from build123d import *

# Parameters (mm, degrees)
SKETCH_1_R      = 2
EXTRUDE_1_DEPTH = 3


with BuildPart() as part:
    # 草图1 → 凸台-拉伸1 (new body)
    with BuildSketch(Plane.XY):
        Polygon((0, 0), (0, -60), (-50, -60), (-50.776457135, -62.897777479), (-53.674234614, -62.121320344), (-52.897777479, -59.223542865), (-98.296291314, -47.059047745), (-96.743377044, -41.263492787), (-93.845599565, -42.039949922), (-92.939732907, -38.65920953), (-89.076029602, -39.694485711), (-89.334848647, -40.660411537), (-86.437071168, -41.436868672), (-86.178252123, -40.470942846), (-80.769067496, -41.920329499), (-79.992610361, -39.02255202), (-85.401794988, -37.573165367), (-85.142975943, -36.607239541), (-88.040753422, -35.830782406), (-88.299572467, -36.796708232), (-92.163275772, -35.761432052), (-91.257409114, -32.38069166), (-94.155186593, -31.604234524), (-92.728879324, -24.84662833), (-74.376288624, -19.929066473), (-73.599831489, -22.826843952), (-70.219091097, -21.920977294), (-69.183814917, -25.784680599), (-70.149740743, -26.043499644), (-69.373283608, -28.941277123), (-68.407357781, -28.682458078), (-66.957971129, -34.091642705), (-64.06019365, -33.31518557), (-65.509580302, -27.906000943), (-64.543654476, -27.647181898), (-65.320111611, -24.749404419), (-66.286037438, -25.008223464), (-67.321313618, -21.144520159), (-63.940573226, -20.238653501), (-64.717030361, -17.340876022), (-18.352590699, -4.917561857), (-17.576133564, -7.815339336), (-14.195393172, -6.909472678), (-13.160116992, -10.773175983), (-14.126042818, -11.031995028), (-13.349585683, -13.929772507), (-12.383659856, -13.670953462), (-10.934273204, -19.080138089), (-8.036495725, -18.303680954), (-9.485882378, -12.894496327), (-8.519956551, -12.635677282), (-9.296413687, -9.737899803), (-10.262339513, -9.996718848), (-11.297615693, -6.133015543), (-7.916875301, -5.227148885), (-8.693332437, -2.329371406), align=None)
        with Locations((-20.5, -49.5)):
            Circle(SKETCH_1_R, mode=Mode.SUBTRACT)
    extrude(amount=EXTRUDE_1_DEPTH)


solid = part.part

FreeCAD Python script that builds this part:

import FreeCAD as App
import Part
import Sketcher
Q = App.Units.Quantity

doc = App.newDocument("Part")
params = doc.addObject("Spreadsheet::Sheet", "Params")
for row, (alias, value) in enumerate([
    ("sketch1_diameter", "4 mm"),
    ("sketch1_width", "50 mm"),
    ("sketch1_height", "60 mm"),
    ("sketch1_length", "9 mm"),
    ("sketch1_length2", "3 mm"),
    ("pad1_length", "3 mm"),
], start=1):
    params.set(f"A{row}", alias)
    params.set(f"B{row}", "=" + value)
    params.setAlias(f"B{row}", alias)

body = doc.addObject("PartDesign::Body", "Body")

sketch1 = body.newObject("Sketcher::SketchObject", "Sketch")
sketch1.AttachmentSupport = (doc.getObject("XY_Plane"), [""])
sketch1.MapMode = "FlatFace"
sketch1.addGeometry([
    Part.LineSegment(App.Vector(0, -60, 0), App.Vector(0, 0, 0)),
    Part.LineSegment(App.Vector(0, 0, 0), App.Vector(-8.693332, -2.329371, 0)),
    Part.LineSegment(App.Vector(-8.693332, -2.329371, 0), App.Vector(-7.916875, -5.227149, 0)),
    Part.LineSegment(App.Vector(-7.916875, -5.227149, 0), App.Vector(-11.297616, -6.133016, 0)),
    Part.LineSegment(App.Vector(-11.297616, -6.133016, 0), App.Vector(-10.26234, -9.996719, 0)),
    Part.LineSegment(App.Vector(-10.26234, -9.996719, 0), App.Vector(-9.296414, -9.7379, 0)),
    Part.LineSegment(App.Vector(-9.296414, -9.7379, 0), App.Vector(-8.519957, -12.635677, 0)),
    Part.LineSegment(App.Vector(-8.519957, -12.635677, 0), App.Vector(-9.485882, -12.894496, 0)),
    Part.LineSegment(App.Vector(-9.485882, -12.894496, 0), App.Vector(-8.036496, -18.303681, 0)),
    Part.LineSegment(App.Vector(-8.036496, -18.303681, 0), App.Vector(-10.934273, -19.080138, 0)),
    Part.LineSegment(App.Vector(-10.934273, -19.080138, 0), App.Vector(-12.38366, -13.670953, 0)),
    Part.LineSegment(App.Vector(-12.38366, -13.670953, 0), App.Vector(-13.349586, -13.929773, 0)),
    Part.LineSegment(App.Vector(-13.349586, -13.929773, 0), App.Vector(-14.126043, -11.031995, 0)),
    Part.LineSegment(App.Vector(-14.126043, -11.031995, 0), App.Vector(-13.160117, -10.773176, 0)),
    Part.LineSegment(App.Vector(-13.160117, -10.773176, 0), App.Vector(-14.195393, -6.909473, 0)),
    Part.LineSegment(App.Vector(-14.195393, -6.909473, 0), App.Vector(-17.576134, -7.815339, 0)),
    Part.LineSegment(App.Vector(-17.576134, -7.815339, 0), App.Vector(-18.352591, -4.917562, 0)),
    Part.LineSegment(App.Vector(-18.352591, -4.917562, 0), App.Vector(-64.71703, -17.340876, 0)),
    Part.LineSegment(App.Vector(-64.71703, -17.340876, 0), App.Vector(-63.940573, -20.238654, 0)),
    Part.LineSegment(App.Vector(-63.940573, -20.238654, 0), App.Vector(-67.321314, -21.14452, 0)),
    Part.LineSegment(App.Vector(-67.321314, -21.14452, 0), App.Vector(-66.286037, -25.008223, 0)),
    Part.LineSegment(App.Vector(-66.286037, -25.008223, 0), App.Vector(-65.320112, -24.749404, 0)),
    Part.LineSegment(App.Vector(-65.320112, -24.749404, 0), App.Vector(-64.543654, -27.647182, 0)),
    Part.LineSegment(App.Vector(-64.543654, -27.647182, 0), App.Vector(-65.50958, -27.906001, 0)),
    Part.LineSegment(App.Vector(-65.50958, -27.906001, 0), App.Vector(-64.060194, -33.315186, 0)),
    Part.LineSegment(App.Vector(-64.060194, -33.315186, 0), App.Vector(-66.957971, -34.091643, 0)),
    Part.LineSegment(App.Vector(-66.957971, -34.091643, 0), App.Vector(-68.407358, -28.682458, 0)),
    Part.LineSegment(App.Vector(-68.407358, -28.682458, 0), App.Vector(-69.373284, -28.941277, 0)),
    Part.LineSegment(App.Vector(-69.373284, -28.941277, 0), App.Vector(-70.149741, -26.0435, 0)),
    Part.LineSegment(App.Vector(-70.149741, -26.0435, 0), App.Vector(-69.183815, -25.784681, 0)),
    Part.LineSegment(App.Vector(-69.183815, -25.784681, 0), App.Vector(-70.219091, -21.920977, 0)),
    Part.LineSegment(App.Vector(-70.219091, -21.920977, 0), App.Vector(-73.599831, -22.826844, 0)),
    Part.LineSegment(App.Vector(-73.599831, -22.826844, 0), App.Vector(-74.376289, -19.929066, 0)),
    Part.LineSegment(App.Vector(-74.376289, -19.929066, 0), App.Vector(-92.728879, -24.846628, 0)),
    Part.LineSegment(App.Vector(-92.728879, -24.846628, 0), App.Vector(-94.155187, -31.604235, 0)),
    Part.LineSegment(App.Vector(-94.155187, -31.604235, 0), App.Vector(-91.257409, -32.380692, 0)),
    Part.LineSegment(App.Vector(-91.257409, -32.380692, 0), App.Vector(-92.163276, -35.761432, 0)),
    Part.LineSegment(App.Vector(-92.163276, -35.761432, 0), App.Vector(-88.299572, -36.796708, 0)),
    Part.LineSegment(App.Vector(-88.299572, -36.796708, 0), App.Vector(-88.040753, -35.830782, 0)),
    Part.LineSegment(App.Vector(-88.040753, -35.830782, 0), App.Vector(-85.142976, -36.60724, 0)),
    Part.LineSegment(App.Vector(-85.142976, -36.60724, 0), App.Vector(-85.401795, -37.573165, 0)),
    Part.LineSegment(App.Vector(-85.401795, -37.573165, 0), App.Vector(-79.99261, -39.022552, 0)),
    Part.LineSegment(App.Vector(-79.99261, -39.022552, 0), App.Vector(-80.769067, -41.920329, 0)),
    Part.LineSegment(App.Vector(-80.769067, -41.920329, 0), App.Vector(-86.178252, -40.470943, 0)),
    Part.LineSegment(App.Vector(-86.178252, -40.470943, 0), App.Vector(-86.437071, -41.436869, 0)),
    Part.LineSegment(App.Vector(-86.437071, -41.436869, 0), App.Vector(-89.334849, -40.660412, 0)),
    Part.LineSegment(App.Vector(-89.334849, -40.660412, 0), App.Vector(-89.07603, -39.694486, 0)),
    Part.LineSegment(App.Vector(-89.07603, -39.694486, 0), App.Vector(-92.939733, -38.65921, 0)),
    Part.LineSegment(App.Vector(-92.939733, -38.65921, 0), App.Vector(-93.8456, -42.03995, 0)),
    Part.LineSegment(App.Vector(-93.8456, -42.03995, 0), App.Vector(-96.743377, -41.263493, 0)),
    Part.LineSegment(App.Vector(-96.743377, -41.263493, 0), App.Vector(-98.296291, -47.059048, 0)),
    Part.LineSegment(App.Vector(-98.296291, -47.059048, 0), App.Vector(-52.897777, -59.223543, 0)),
    Part.LineSegment(App.Vector(-52.897777, -59.223543, 0), App.Vector(-53.674235, -62.12132, 0)),
    Part.LineSegment(App.Vector(-53.674235, -62.12132, 0), App.Vector(-50.776457, -62.897777, 0)),
    Part.LineSegment(App.Vector(-50.776457, -62.897777, 0), App.Vector(-50, -60, 0)),
    Part.LineSegment(App.Vector(-50, -60, 0), App.Vector(0, -60, 0)),
    Part.Circle(App.Vector(-20.5, -49.5, 0), App.Vector(0, 0, 1), 2),
], False)
sketch1.addConstraint([
    Sketcher.Constraint("Coincident", 0, 2, 1, 1),
    Sketcher.Constraint("Coincident", 1, 2, 2, 1),
    Sketcher.Constraint("Coincident", 2, 2, 3, 1),
    Sketcher.Constraint("Coincident", 3, 2, 4, 1),
    Sketcher.Constraint("Coincident", 4, 2, 5, 1),
    Sketcher.Constraint("Coincident", 5, 2, 6, 1),
    Sketcher.Constraint("Coincident", 6, 2, 7, 1),
    Sketcher.Constraint("Coincident", 7, 2, 8, 1),
    Sketcher.Constraint("Coincident", 8, 2, 9, 1),
    Sketcher.Constraint("Coincident", 9, 2, 10, 1),
    Sketcher.Constraint("Coincident", 10, 2, 11, 1),
    Sketcher.Constraint("Coincident", 11, 2, 12, 1),
    Sketcher.Constraint("Coincident", 12, 2, 13, 1),
    Sketcher.Constraint("Coincident", 13, 2, 14, 1),
    Sketcher.Constraint("Coincident", 14, 2, 15, 1),
    Sketcher.Constraint("Coincident", 15, 2, 16, 1),
    Sketcher.Constraint("Coincident", 16, 2, 17, 1),
    Sketcher.Constraint("Coincident", 17, 2, 18, 1),
    Sketcher.Constraint("Coincident", 18, 2, 19, 1),
    Sketcher.Constraint("Coincident", 19, 2, 20, 1),
    Sketcher.Constraint("Coincident", 20, 2, 21, 1),
    Sketcher.Constraint("Coincident", 21, 2, 22, 1),
    Sketcher.Constraint("Coincident", 22, 2, 23, 1),
    Sketcher.Constraint("Coincident", 23, 2, 24, 1),
    Sketcher.Constraint("Coincident", 24, 2, 25, 1),
    Sketcher.Constraint("Coincident", 25, 2, 26, 1),
    Sketcher.Constraint("Coincident", 26, 2, 27, 1),
    Sketcher.Constraint("Coincident", 27, 2, 28, 1),
    Sketcher.Constraint("Coincident", 28, 2, 29, 1),
    Sketcher.Constraint("Coincident", 29, 2, 30, 1),
    Sketcher.Constraint("Coincident", 30, 2, 31, 1),
    Sketcher.Constraint("Coincident", 31, 2, 32, 1),
    Sketcher.Constraint("Coincident", 32, 2, 33, 1),
    Sketcher.Constraint("Coincident", 33, 2, 34, 1),
    Sketcher.Constraint("Coincident", 34, 2, 35, 1),
    Sketcher.Constraint("Coincident", 35, 2, 36, 1),
    Sketcher.Constraint("Coincident", 36, 2, 37, 1),
    Sketcher.Constraint("Coincident", 37, 2, 38, 1),
    Sketcher.Constraint("Coincident", 38, 2, 39, 1),
    Sketcher.Constraint("Coincident", 39, 2, 40, 1),
    Sketcher.Constraint("Coincident", 40, 2, 41, 1),
    Sketcher.Constraint("Coincident", 41, 2, 42, 1),
    Sketcher.Constraint("Coincident", 42, 2, 43, 1),
    Sketcher.Constraint("Coincident", 43, 2, 44, 1),
    Sketcher.Constraint("Coincident", 44, 2, 45, 1),
    Sketcher.Constraint("Coincident", 45, 2, 46, 1),
    Sketcher.Constraint("Coincident", 46, 2, 47, 1),
    Sketcher.Constraint("Coincident", 47, 2, 48, 1),
    Sketcher.Constraint("Coincident", 48, 2, 49, 1),
    Sketcher.Constraint("Coincident", 49, 2, 50, 1),
    Sketcher.Constraint("Coincident", 50, 2, 51, 1),
    Sketcher.Constraint("Coincident", 51, 2, 52, 1),
    Sketcher.Constraint("Coincident", 52, 2, 53, 1),
    Sketcher.Constraint("Coincident", 53, 2, 54, 1),
    Sketcher.Constraint("Coincident", 54, 2, 55, 1),
    Sketcher.Constraint("Coincident", 55, 2, 0, 1),
    Sketcher.Constraint("Vertical", 0),
    Sketcher.Constraint("Horizontal", 55),
    Sketcher.Constraint("Coincident", 0, 2, -1, 1),
    Sketcher.Constraint("Perpendicular", 1, 2),
    Sketcher.Constraint("Perpendicular", 2, 3),
    Sketcher.Constraint("Perpendicular", 3, 4),
    Sketcher.Constraint("Perpendicular", 4, 5),
    Sketcher.Constraint("Perpendicular", 5, 6),
    Sketcher.Constraint("Perpendicular", 6, 7),
    Sketcher.Constraint("Perpendicular", 7, 8),
    Sketcher.Constraint("Perpendicular", 8, 9),
    Sketcher.Constraint("Perpendicular", 9, 10),
    Sketcher.Constraint("Perpendicular", 10, 11),
    Sketcher.Constraint("Perpendicular", 11, 12),
    Sketcher.Constraint("Perpendicular", 12, 13),
    Sketcher.Constraint("Perpendicular", 13, 14),
    Sketcher.Constraint("Perpendicular", 14, 15),
    Sketcher.Constraint("Perpendicular", 15, 16),
    Sketcher.Constraint("Perpendicular", 16, 17),
    Sketcher.Constraint("Perpendicular", 17, 18),
    Sketcher.Constraint("Perpendicular", 18, 19),
    Sketcher.Constraint("Perpendicular", 19, 20),
    Sketcher.Constraint("Perpendicular", 20, 21),
    Sketcher.Constraint("Perpendicular", 21, 22),
    Sketcher.Constraint("Perpendicular", 22, 23),
    Sketcher.Constraint("Perpendicular", 23, 24),
    Sketcher.Constraint("Perpendicular", 24, 25),
    Sketcher.Constraint("Perpendicular", 25, 26),
    Sketcher.Constraint("Perpendicular", 26, 27),
    Sketcher.Constraint("Perpendicular", 27, 28),
    Sketcher.Constraint("Perpendicular", 28, 29),
    Sketcher.Constraint("Perpendicular", 29, 30),
    Sketcher.Constraint("Perpendicular", 30, 31),
    Sketcher.Constraint("Perpendicular", 31, 32),
    Sketcher.Constraint("Perpendicular", 32, 33),
    Sketcher.Constraint("Perpendicular", 35, 36),
    Sketcher.Constraint("Perpendicular", 36, 37),
    Sketcher.Constraint("Perpendicular", 37, 38),
    Sketcher.Constraint("Perpendicular", 38, 39),
    Sketcher.Constraint("Perpendicular", 39, 40),
    Sketcher.Constraint("Perpendicular", 40, 41),
    Sketcher.Constraint("Perpendicular", 41, 42),
    Sketcher.Constraint("Perpendicular", 42, 43),
    Sketcher.Constraint("Perpendicular", 43, 44),
    Sketcher.Constraint("Perpendicular", 44, 45),
    Sketcher.Constraint("Perpendicular", 45, 46),
    Sketcher.Constraint("Perpendicular", 46, 47),
    Sketcher.Constraint("Perpendicular", 47, 48),
    Sketcher.Constraint("Perpendicular", 48, 49),
    Sketcher.Constraint("Perpendicular", 49, 50),
    Sketcher.Constraint("Perpendicular", 50, 51),
    Sketcher.Constraint("Perpendicular", 51, 52),
    Sketcher.Constraint("Perpendicular", 52, 53),
    Sketcher.Constraint("Perpendicular", 53, 54),
    Sketcher.Constraint("Equal", 2, 6),
    Sketcher.Constraint("Equal", 5, 7),
    Sketcher.Constraint("Equal", 6, 9),
    Sketcher.Constraint("Equal", 8, 10),
    Sketcher.Constraint("Equal", 7, 11),
    Sketcher.Constraint("Equal", 9, 12),
    Sketcher.Constraint("Equal", 11, 13),
    Sketcher.Constraint("Equal", 4, 14),
    Sketcher.Constraint("Equal", 3, 15),
    Sketcher.Constraint("Equal", 12, 16),
    Sketcher.Constraint("Equal", 16, 18),
    Sketcher.Constraint("Equal", 15, 19),
    Sketcher.Constraint("Equal", 14, 20),
    Sketcher.Constraint("Equal", 13, 21),
    Sketcher.Constraint("Equal", 18, 22),
    Sketcher.Constraint("Equal", 21, 23),
    Sketcher.Constraint("Equal", 10, 24),
    Sketcher.Constraint("Equal", 22, 25),
    Sketcher.Constraint("Equal", 24, 26),
    Sketcher.Constraint("Equal", 23, 27),
    Sketcher.Constraint("Equal", 25, 28),
    Sketcher.Constraint("Equal", 27, 29),
    Sketcher.Constraint("Equal", 20, 30),
    Sketcher.Constraint("Equal", 19, 31),
    Sketcher.Constraint("Equal", 28, 32),
    Sketcher.Constraint("Equal", 32, 35),
    Sketcher.Constraint("Equal", 31, 36),
    Sketcher.Constraint("Equal", 30, 37),
    Sketcher.Constraint("Equal", 29, 38),
    Sketcher.Constraint("Equal", 35, 39),
    Sketcher.Constraint("Equal", 38, 40),
    Sketcher.Constraint("Equal", 26, 41),
    Sketcher.Constraint("Equal", 39, 42),
    Sketcher.Constraint("Equal", 41, 43),
    Sketcher.Constraint("Equal", 40, 44),
    Sketcher.Constraint("Equal", 42, 45),
    Sketcher.Constraint("Equal", 44, 46),
    Sketcher.Constraint("Equal", 37, 47),
    Sketcher.Constraint("Equal", 36, 48),
    Sketcher.Constraint("Equal", 45, 49),
    Sketcher.Constraint("Equal", 49, 52),
    Sketcher.Constraint("Equal", 52, 53),
    Sketcher.Constraint("Equal", 53, 54),
    Sketcher.Constraint("Diameter", 56, Q("4 mm")),
    Sketcher.Constraint("DistanceX", 55, 1, 55, 2, Q("50 mm")),
    Sketcher.Constraint("DistanceY", 0, 1, 0, 2, Q("60 mm")),
    Sketcher.Constraint("Angle", 1, Q("-165 deg")),
    Sketcher.Constraint("Angle", 35, Q("-15 deg")),
    Sketcher.Constraint("Distance", 1, Q("9 mm")),
    Sketcher.Constraint("Distance", 2, Q("3 mm")),
    Sketcher.Constraint("Distance", 4, Q("4 mm")),
    Sketcher.Constraint("Distance", 5, Q("1 mm")),
    Sketcher.Constraint("Distance", 17, Q("48 mm")),
    Sketcher.Constraint("Distance", 33, Q("19 mm")),
    Sketcher.Constraint("Distance", 50, Q("6 mm")),
    Sketcher.Constraint("Distance", 51, Q("47 mm")),
    Sketcher.Constraint("Distance", 3, Q("3.5 mm")),
    Sketcher.Constraint("Distance", 8, Q("5.6 mm")),
    Sketcher.Constraint("DistanceX", 56, 3, -1, 1, Q("20.5 mm")),
    Sketcher.Constraint("DistanceY", 56, 3, -1, 1, Q("49.5 mm")),
])
sketch1.setExpression("Constraints[153]", "Params.sketch1_diameter")
sketch1.setExpression("Constraints[154]", "Params.sketch1_width")
sketch1.setExpression("Constraints[155]", "Params.sketch1_height")
sketch1.setExpression("Constraints[158]", "Params.sketch1_length")
sketch1.setExpression("Constraints[159]", "Params.sketch1_length2")
pad1 = body.newObject("PartDesign::Pad", "Pad")
pad1.Profile = sketch1
pad1.setExpression("Length", "Params.pad1_length")

doc.recompute()
